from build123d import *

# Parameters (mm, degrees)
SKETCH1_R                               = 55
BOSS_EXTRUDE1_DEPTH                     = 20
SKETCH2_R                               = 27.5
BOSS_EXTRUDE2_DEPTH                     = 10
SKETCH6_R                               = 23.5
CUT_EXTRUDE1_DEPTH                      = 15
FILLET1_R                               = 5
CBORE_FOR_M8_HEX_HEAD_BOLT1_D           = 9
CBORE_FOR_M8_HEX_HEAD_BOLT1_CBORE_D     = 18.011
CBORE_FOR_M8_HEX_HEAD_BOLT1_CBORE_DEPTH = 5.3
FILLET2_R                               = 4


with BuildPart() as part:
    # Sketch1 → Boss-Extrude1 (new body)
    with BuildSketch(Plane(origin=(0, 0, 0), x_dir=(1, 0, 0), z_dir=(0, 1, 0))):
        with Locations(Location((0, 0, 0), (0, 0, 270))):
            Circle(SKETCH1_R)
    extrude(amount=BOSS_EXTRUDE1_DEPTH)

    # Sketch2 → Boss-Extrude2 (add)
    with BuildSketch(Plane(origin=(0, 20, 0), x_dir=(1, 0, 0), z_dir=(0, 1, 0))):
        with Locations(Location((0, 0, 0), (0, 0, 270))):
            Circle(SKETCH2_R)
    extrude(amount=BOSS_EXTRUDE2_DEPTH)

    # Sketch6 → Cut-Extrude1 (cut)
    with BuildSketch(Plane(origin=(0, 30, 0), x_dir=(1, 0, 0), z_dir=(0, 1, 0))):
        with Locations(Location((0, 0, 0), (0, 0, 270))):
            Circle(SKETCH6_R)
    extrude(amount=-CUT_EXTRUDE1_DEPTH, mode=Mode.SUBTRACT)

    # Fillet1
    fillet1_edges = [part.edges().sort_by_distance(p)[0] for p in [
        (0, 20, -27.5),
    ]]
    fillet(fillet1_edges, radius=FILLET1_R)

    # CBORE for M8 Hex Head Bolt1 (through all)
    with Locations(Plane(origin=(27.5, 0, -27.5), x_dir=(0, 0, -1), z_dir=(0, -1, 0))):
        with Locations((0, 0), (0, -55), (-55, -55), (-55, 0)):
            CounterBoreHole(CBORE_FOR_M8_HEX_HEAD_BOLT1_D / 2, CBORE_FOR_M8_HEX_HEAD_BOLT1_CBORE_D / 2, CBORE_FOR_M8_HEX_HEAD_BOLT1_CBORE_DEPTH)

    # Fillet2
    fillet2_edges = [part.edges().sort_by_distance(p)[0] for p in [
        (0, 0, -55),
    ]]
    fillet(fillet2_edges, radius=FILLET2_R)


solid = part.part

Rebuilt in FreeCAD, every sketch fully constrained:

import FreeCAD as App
import Part
import Sketcher
from FreeCAD import Vector
Q = App.Units.Quantity


def edges_at(feature, points):
    """Names of the edges that pass closest to the given points."""
    edges = feature.Shape.Edges
    near = lambda p: min(range(len(edges)), key=lambda i: edges[i].distToShape(Part.Vertex(*p))[0])
    return sorted({f"Edge{near(p) + 1}" for p in points})

doc = App.newDocument("Part")
body = doc.addObject("PartDesign::Body", "Body")

sketch1 = body.newObject("Sketcher::SketchObject", "Sketch")
sketch1.AttachmentSupport = (doc.getObject("XZ_Plane"), [""])
sketch1.MapMode = "FlatFace"
sketch1.addGeometry(Part.Circle(Vector(0, 0, 0), Vector(0, 0, 1), 55), False)
sketch1.addConstraint([
    Sketcher.Constraint("Coincident", 0, 3, -1, 1),
    Sketcher.Constraint("Diameter", 0, Q("110 mm")),
])
pad1 = body.newObject("PartDesign::Pad", "Pad")
pad1.Profile = sketch1
pad1.Length = 20
pad1.Reversed = True

sketch2 = body.newObject("Sketcher::SketchObject", "Sketch001")
sketch2.AttachmentSupport = (doc.getObject("XZ_Plane"), [""])
sketch2.MapMode = "FlatFace"
sketch2.AttachmentOffset = App.Placement(Vector(0, 0, -20), App.Rotation())
sketch2.addGeometry(Part.Circle(Vector(0, 0, 0), Vector(0, 0, 1), 28), False)
sketch2.addConstraint([
    Sketcher.Constraint("Coincident", 0, 3, -1, 1),
    Sketcher.Constraint("Diameter", 0, Q("55 mm")),
])
pad2 = body.newObject("PartDesign::Pad", "Pad001")
pad2.Profile = sketch2
pad2.Length = 10
pad2.Reversed = True

sketch3 = body.newObject("Sketcher::SketchObject", "Sketch002")
sketch3.AttachmentSupport = (doc.getObject("XZ_Plane"), [""])
sketch3.MapMode = "FlatFace"
sketch3.AttachmentOffset = App.Placement(Vector(0, 0, -30), App.Rotation())
sketch3.addGeometry(Part.Circle(Vector(0, 0, 0), Vector(0, 0, 1), 24), False)
sketch3.addConstraint([
    Sketcher.Constraint("Coincident", 0, 3, -1, 1),
    Sketcher.Constraint("Diameter", 0, Q("47 mm")),
])
pocket1 = body.newObject("PartDesign::Pocket", "Pocket")
pocket1.Profile = sketch3
pocket1.Length = 15
pocket1.Reversed = True
doc.recompute()

fillet = body.newObject("PartDesign::Fillet", "Fillet")
fillet.Base = (pocket1, edges_at(pocket1, [(0, 20, -27.5)]))
fillet.Radius = 5

sketch4 = body.newObject("Sketcher::SketchObject", "Sketch003")
sketch4.AttachmentSupport = (doc.getObject("XZ_Plane"), [""])
sketch4.MapMode = "FlatFace"
sketch4.addGeometry([
    Part.Circle(Vector(27.5, -27.5, 0), Vector(0, 0, 1), 4.5),
    Part.Circle(Vector(-27.5, -27.5, 0), Vector(0, 0, 1), 4.5),
    Part.Circle(Vector(-27.5, 27.5, 0), Vector(0, 0, 1), 4.5),
    Part.Circle(Vector(27.5, 27.5, 0), Vector(0, 0, 1), 4.5),
], False)
sketch4.addConstraint([
    Sketcher.Constraint("Equal", 0, 1),
    Sketcher.Constraint("Equal", 1, 2),
    Sketcher.Constraint("Equal", 2, 3),
    Sketcher.Constraint("Symmetric", 0, 3, 2, 3, -1, 1),
    Sketcher.Constraint("Symmetric", 1, 3, 3, 3, -1, 1),
    Sketcher.Constraint("Symmetric", 0, 3, 1, 3, -2),
    Sketcher.Constraint("Diameter", 0, Q("9 mm")),
    Sketcher.Constraint("DistanceX", 1, 3, 0, 3, Q("55 mm")),
    Sketcher.Constraint("DistanceY", 1, 3, 2, 3, Q("55 mm")),
])
doc.recompute()
hole = body.newObject("PartDesign::Hole", "Hole")
hole.Profile = sketch4
hole.ThreadType = "None"
hole.Diameter = 9
hole.DepthType = "ThroughAll"
hole.HoleCutType = "Counterbore"
hole.HoleCutDiameter = 18.011
hole.HoleCutDepth = 5.3
doc.recompute()

fillet2 = body.newObject("PartDesign::Fillet", "Fillet001")
fillet2.Base = (hole, edges_at(hole, [(0, 0, -55)]))
fillet2.Radius = 4

doc.recompute()
